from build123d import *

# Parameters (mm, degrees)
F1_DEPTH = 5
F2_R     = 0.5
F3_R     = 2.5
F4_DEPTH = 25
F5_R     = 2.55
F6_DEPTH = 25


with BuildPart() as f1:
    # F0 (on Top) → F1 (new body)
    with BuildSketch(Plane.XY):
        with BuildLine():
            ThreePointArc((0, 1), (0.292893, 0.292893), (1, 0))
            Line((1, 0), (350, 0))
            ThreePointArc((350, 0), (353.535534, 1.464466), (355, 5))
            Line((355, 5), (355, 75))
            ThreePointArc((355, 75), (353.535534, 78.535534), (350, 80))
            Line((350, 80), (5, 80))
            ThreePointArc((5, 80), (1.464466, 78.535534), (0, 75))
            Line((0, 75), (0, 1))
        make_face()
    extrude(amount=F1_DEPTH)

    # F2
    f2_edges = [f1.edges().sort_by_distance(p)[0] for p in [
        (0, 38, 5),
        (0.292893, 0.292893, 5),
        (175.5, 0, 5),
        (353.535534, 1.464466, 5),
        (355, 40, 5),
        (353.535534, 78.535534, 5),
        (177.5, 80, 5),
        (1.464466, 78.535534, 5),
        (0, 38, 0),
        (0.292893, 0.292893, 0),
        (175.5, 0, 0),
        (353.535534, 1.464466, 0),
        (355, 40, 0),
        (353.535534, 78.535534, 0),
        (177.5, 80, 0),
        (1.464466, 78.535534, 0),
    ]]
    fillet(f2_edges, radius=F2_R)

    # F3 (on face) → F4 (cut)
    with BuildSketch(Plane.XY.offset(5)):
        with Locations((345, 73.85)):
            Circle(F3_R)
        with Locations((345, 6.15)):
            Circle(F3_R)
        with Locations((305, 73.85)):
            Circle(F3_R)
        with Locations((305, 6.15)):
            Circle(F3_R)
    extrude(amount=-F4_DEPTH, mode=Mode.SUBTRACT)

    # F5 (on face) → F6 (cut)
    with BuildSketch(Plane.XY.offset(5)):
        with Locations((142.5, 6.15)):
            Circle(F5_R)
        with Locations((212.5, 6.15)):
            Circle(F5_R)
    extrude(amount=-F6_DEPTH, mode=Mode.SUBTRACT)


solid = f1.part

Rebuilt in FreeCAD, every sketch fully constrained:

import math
import FreeCAD as App
import Part
import Sketcher

V = App.Vector
Q = App.Units.Quantity


def edges_at(feature, points):
    """Names of the edges that pass closest to the given points."""
    edges = feature.Shape.Edges
    near = lambda p: min(range(len(edges)), key=lambda i: edges[i].distToShape(Part.Vertex(*p))[0])
    return sorted({f"Edge{near(p) + 1}" for p in points})

doc = App.newDocument("Part")
body = doc.addObject("PartDesign::Body", "Body")

# Sketch on XY plane
sketch1 = body.newObject("Sketcher::SketchObject", "Sketch")
sketch1.AttachmentSupport = (doc.getObject("XY_Plane"), [""])
sketch1.MapMode = "FlatFace"
sketch1.addGeometry([
    Part.ArcOfCircle(Part.Circle(V(1, 1, 0), V(0, 0, 1), 1), math.radians(180), math.radians(270)),  # 0
    Part.LineSegment(V(1, 0, 0), V(350, 0, 0)),  # 1
    Part.ArcOfCircle(Part.Circle(V(350, 5, 0), V(0, 0, 1), 5), math.radians(-90), math.radians(0)),  # 2
    Part.LineSegment(V(355, 5, 0), V(355, 75, 0)),  # 3
    Part.ArcOfCircle(Part.Circle(V(350, 75, 0), V(0, 0, 1), 5), math.radians(0), math.radians(90)),  # 4
    Part.LineSegment(V(350, 80, 0), V(5, 80, 0)),  # 5
    Part.ArcOfCircle(Part.Circle(V(5, 75, 0), V(0, 0, 1), 5), math.radians(90), math.radians(180)),  # 6
    Part.LineSegment(V(0, 75, 0), V(0, 1, 0)),  # 7
], False)
sketch1.addConstraint([
    Sketcher.Constraint("Tangent", 0, 2, 1, 1),
    Sketcher.Constraint("Tangent", 1, 2, 2, 1),
    Sketcher.Constraint("Tangent", 2, 2, 3, 1),
    Sketcher.Constraint("Tangent", 3, 2, 4, 1),
    Sketcher.Constraint("Tangent", 4, 2, 5, 1),
    Sketcher.Constraint("Tangent", 5, 2, 6, 1),
    Sketcher.Constraint("Tangent", 6, 2, 7, 1),
    Sketcher.Constraint("Tangent", 7, 2, 0, 1),
    Sketcher.Constraint("Horizontal", 1),
    Sketcher.Constraint("Vertical", 3),
    Sketcher.Constraint("Horizontal", 5),
    Sketcher.Constraint("Vertical", 7),
    Sketcher.Constraint("Equal", 2, 4),
    Sketcher.Constraint("Equal", 4, 6),
    Sketcher.Constraint("PointOnObject", 0, 2, -1),
    Sketcher.Constraint("PointOnObject", 6, 2, -2),
    Sketcher.Constraint("Radius", 0, Q("0.999999 mm")),
    Sketcher.Constraint("Radius", 2, Q("5 mm")),
    Sketcher.Constraint("DistanceX", 1, 1, 1, 2, Q("349 mm")),
    Sketcher.Constraint("DistanceY", 3, 1, 3, 2, Q("70 mm")),
])
pad1 = body.newObject("PartDesign::Pad", "Pad")
pad1.Profile = sketch1
pad1.Length = 5
doc.recompute()

fillet = body.newObject("PartDesign::Fillet", "Fillet")
fillet.Base = (pad1, edges_at(pad1, [
    (0, 38, 5),
    (0.293, 0.293, 5),
    (175.5, 0, 5),
    (353.536, 1.464, 5),
    (355, 40, 5),
    (353.536, 78.536, 5),
    (177.5, 80, 5),
    (1.464, 78.536, 5),
    (0, 38, 0),
    (0.293, 0.293, 0),
    (175.5, 0, 0),
    (353.536, 1.464, 0),
    (355, 40, 0),
    (353.536, 78.536, 0),
    (177.5, 80, 0),
    (1.464, 78.536, 0),
]))
fillet.Radius = 0.5

# Sketch on XY plane
sketch2 = body.newObject("Sketcher::SketchObject", "Sketch001")
sketch2.AttachmentSupport = (doc.getObject("XY_Plane"), [""])
sketch2.MapMode = "FlatFace"
sketch2.AttachmentOffset = App.Placement(V(0, 0, 5), App.Rotation())
sketch2.addGeometry([
    Part.Circle(V(345, 73.8, 0), V(0, 0, 1), 2.5),
    Part.Circle(V(345, 6.2, 0), V(0, 0, 1), 2.5),
    Part.Circle(V(305, 73.8, 0), V(0, 0, 1), 2.5),
    Part.Circle(V(305, 6.2, 0), V(0, 0, 1), 2.5),
], False)
sketch2.addConstraint([
    Sketcher.Constraint("Equal", 0, 1),
    Sketcher.Constraint("Equal", 1, 2),
    Sketcher.Constraint("Equal", 2, 3),
    Sketcher.Constraint("Horizontal", 0, 3, 2, 3),
    Sketcher.Constraint("Horizontal", 1, 3, 3, 3),
    Sketcher.Constraint("Vertical", 0, 3, 1, 3),
    Sketcher.Constraint("Vertical", 2, 3, 3, 3),
    Sketcher.Constraint("Diameter", 0, Q("5 mm")),
    Sketcher.Constraint("DistanceX", -1, 1, 0, 3, Q("345 mm")),
    Sketcher.Constraint("DistanceX", -1, 1, 2, 3, Q("305 mm")),
    Sketcher.Constraint("DistanceY", 1, 3, 0, 3, Q("67.7 mm")),
    Sketcher.Constraint("DistanceY", -1, 1, 0, 3, Q("73.85 mm")),
])
pocket1 = body.newObject("PartDesign::Pocket", "Pocket")
pocket1.Profile = sketch2
pocket1.Length = 25

# Sketch on XY plane
sketch3 = body.newObject("Sketcher::SketchObject", "Sketch002")
sketch3.AttachmentSupport = (doc.getObject("XY_Plane"), [""])
sketch3.MapMode = "FlatFace"
sketch3.AttachmentOffset = App.Placement(V(0, 0, 5), App.Rotation())
sketch3.addGeometry([
    Part.Circle(V(142.5, 6.2, 0), V(0, 0, 1), 2.5),
    Part.Circle(V(212.5, 6.2, 0), V(0, 0, 1), 2.5),
], False)
sketch3.addConstraint([
    Sketcher.Constraint("Equal", 0, 1),
    Sketcher.Constraint("Horizontal", 0, 3, 1, 3),
    Sketcher.Constraint("Diameter", 0, Q("5.1 mm")),
    Sketcher.Constraint("DistanceX", 0, 3, 1, 3, Q("70 mm")),
    Sketcher.Constraint("DistanceX", -1, 1, 0, 3, Q("142.5 mm")),
    Sketcher.Constraint("DistanceY", -1, 1, 0, 3, Q("6.15 mm")),
])
pocket2 = body.newObject("PartDesign::Pocket", "Pocket001")
pocket2.Profile = sketch3
pocket2.Length = 25

doc.recompute()
